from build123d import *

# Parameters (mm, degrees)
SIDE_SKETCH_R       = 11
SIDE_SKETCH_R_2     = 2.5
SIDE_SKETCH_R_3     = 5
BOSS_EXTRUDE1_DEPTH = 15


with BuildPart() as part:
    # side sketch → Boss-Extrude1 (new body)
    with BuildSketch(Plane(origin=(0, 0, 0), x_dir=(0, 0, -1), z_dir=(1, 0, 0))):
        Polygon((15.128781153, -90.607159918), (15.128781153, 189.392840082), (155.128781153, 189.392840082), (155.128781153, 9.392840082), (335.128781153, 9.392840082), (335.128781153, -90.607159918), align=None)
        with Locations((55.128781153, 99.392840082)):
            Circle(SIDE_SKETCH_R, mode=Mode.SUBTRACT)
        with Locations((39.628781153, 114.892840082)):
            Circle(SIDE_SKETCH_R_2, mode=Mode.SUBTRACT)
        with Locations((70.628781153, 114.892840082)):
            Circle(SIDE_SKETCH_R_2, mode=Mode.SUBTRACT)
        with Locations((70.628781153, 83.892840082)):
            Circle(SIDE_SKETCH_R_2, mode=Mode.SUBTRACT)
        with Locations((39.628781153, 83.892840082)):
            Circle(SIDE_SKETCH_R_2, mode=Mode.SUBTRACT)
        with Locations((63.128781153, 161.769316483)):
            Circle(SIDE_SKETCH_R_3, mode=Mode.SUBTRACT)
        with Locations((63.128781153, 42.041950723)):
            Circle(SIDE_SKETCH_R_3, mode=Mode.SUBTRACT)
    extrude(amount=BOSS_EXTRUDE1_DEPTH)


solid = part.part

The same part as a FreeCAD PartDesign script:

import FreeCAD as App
import Part
import Sketcher
Q = App.Units.Quantity


def add_polygon(sketch, points):
    """Adds a closed chain of lines whose ends are joined by coincident constraints."""
    first, n = sketch.GeometryCount, len(points)
    for a, b in zip(points, points[1:] + points[:1]):
        sketch.addGeometry(Part.LineSegment(App.Vector(*a, 0), App.Vector(*b, 0)), False)
    for i in range(n):
        sketch.addConstraint(Sketcher.Constraint("Coincident", first + i, 2, first + (i + 1) % n, 1))

doc = App.newDocument("Part")
body = doc.addObject("PartDesign::Body", "Body")

sketch1 = doc.addObject("Sketcher::SketchObject", "Sketch")
body.addObject(sketch1)
sketch1.AttachmentSupport = (doc.YZ_Plane, [""])
sketch1.MapMode = "FlatFace"
add_polygon(sketch1, [(189.4, -15.1), (-90.6, -15.1), (-90.6, -335.1), (9.4, -335.1), (9.4, -155.1), (189.4, -155.1)])
sketch1.addGeometry(Part.Circle(App.Vector(42, -63.1, 0), App.Vector(0, 0, 1), 5), False)
sketch1.addGeometry(Part.Circle(App.Vector(83.9, -70.6, 0), App.Vector(0, 0, 1), 2.5), False)
sketch1.addGeometry(Part.Circle(App.Vector(99.4, -55.1, 0), App.Vector(0, 0, 1), 11), False)
sketch1.addGeometry(Part.Circle(App.Vector(83.9, -39.6, 0), App.Vector(0, 0, 1), 2.5), False)
sketch1.addGeometry(Part.Circle(App.Vector(114.9, -70.6, 0), App.Vector(0, 0, 1), 2.5), False)
sketch1.addGeometry(Part.Circle(App.Vector(161.8, -63.1, 0), App.Vector(0, 0, 1), 5), False)
sketch1.addGeometry(Part.Circle(App.Vector(114.9, -39.6, 0), App.Vector(0, 0, 1), 2.5), False)
sketch1.addConstraint(Sketcher.Constraint("Horizontal", 0))
sketch1.addConstraint(Sketcher.Constraint("Vertical", 1))
sketch1.addConstraint(Sketcher.Constraint("Horizontal", 2))
sketch1.addConstraint(Sketcher.Constraint("Vertical", 3))
sketch1.addConstraint(Sketcher.Constraint("Horizontal", 4))
sketch1.addConstraint(Sketcher.Constraint("Vertical", 5))
sketch1.addConstraint(Sketcher.Constraint("Equal", 7, 9))
sketch1.addConstraint(Sketcher.Constraint("Equal", 9, 10))
sketch1.addConstraint(Sketcher.Constraint("Equal", 6, 11))
sketch1.addConstraint(Sketcher.Constraint("Equal", 10, 12))
sketch1.addConstraint(Sketcher.Constraint("Horizontal", 7, 3, 10, 3))
sketch1.addConstraint(Sketcher.Constraint("Horizontal", 6, 3, 11, 3))
sketch1.addConstraint(Sketcher.Constraint("Horizontal", 9, 3, 12, 3))
sketch1.addConstraint(Sketcher.Constraint("Vertical", 7, 3, 9, 3))
sketch1.addConstraint(Sketcher.Constraint("Vertical", 10, 3, 12, 3))
sketch1.addConstraint(Sketcher.Constraint("Equal", 4, 3))
sketch1.addConstraint(Sketcher.Constraint("Diameter", 6, Q("10 mm")))
sketch1.addConstraint(Sketcher.Constraint("Diameter", 7, Q("5 mm")))
sketch1.addConstraint(Sketcher.Constraint("Diameter", 8, Q("22 mm")))
sketch1.addConstraint(Sketcher.Constraint("DistanceX", 0, 2, 0, 1, Q("280 mm")))
sketch1.addConstraint(Sketcher.Constraint("DistanceX", 2, 1, 2, 2, Q("100 mm")))
sketch1.addConstraint(Sketcher.Constraint("DistanceY", 1, 2, 1, 1, Q("320 mm")))
sketch1.addConstraint(Sketcher.Constraint("DistanceY", 6, 3, 8, 3, Q("8 mm")))
sketch1.addConstraint(Sketcher.Constraint("DistanceY", 7, 3, 9, 3, Q("31 mm")))
sketch1.addConstraint(Sketcher.Constraint("DistanceX", 7, 3, 10, 3, Q("31 mm")))
sketch1.addConstraint(Sketcher.Constraint("DistanceY", 6, 3, 0, 2, Q("48 mm")))
sketch1.addConstraint(Sketcher.Constraint("DistanceX", 0, 2, 8, 3, Q("190 mm")))
sketch1.addConstraint(Sketcher.Constraint("DistanceY", 7, 3, 6, 3, Q("7.5 mm")))
sketch1.addConstraint(Sketcher.Constraint("DistanceX", 7, 3, 8, 3, Q("15.5 mm")))
sketch1.addConstraint(Sketcher.Constraint("DistanceX", -1, 1, 6, 3, Q("42.041951 mm")))
sketch1.addConstraint(Sketcher.Constraint("DistanceY", 6, 3, -1, 1, Q("63.128781 mm")))
sketch1.addConstraint(Sketcher.Constraint("DistanceX", -1, 1, 7, 3, Q("83.89284 mm")))
sketch1.addConstraint(Sketcher.Constraint("DistanceX", -1, 1, 11, 3, Q("161.769316 mm")))
pad1 = doc.addObject("PartDesign::Pad", "Pad")
body.addObject(pad1)
pad1.Profile = sketch1
pad1.Length = 15

doc.recompute()
